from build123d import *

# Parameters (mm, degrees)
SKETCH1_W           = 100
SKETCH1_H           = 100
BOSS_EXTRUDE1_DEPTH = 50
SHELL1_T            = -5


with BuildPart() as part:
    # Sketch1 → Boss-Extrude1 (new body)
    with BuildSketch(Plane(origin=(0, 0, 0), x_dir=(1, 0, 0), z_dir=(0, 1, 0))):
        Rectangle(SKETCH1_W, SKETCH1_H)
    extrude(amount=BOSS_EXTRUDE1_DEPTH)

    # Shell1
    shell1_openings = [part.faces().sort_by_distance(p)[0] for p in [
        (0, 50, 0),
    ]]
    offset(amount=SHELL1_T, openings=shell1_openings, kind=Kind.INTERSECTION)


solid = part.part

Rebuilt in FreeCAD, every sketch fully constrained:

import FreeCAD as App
import Part
import Sketcher
from FreeCAD import Vector


def faces_at(feature, points):
    """Names of the faces that lie closest to the given points."""
    faces = feature.Shape.Faces
    near = lambda p: min(range(len(faces)), key=lambda i: faces[i].distToShape(Part.Vertex(*p))[0])
    return sorted({f"Face{near(p) + 1}" for p in points})


def add_polygon(sketch, points):
    """Adds a closed chain of lines whose ends are joined by coincident constraints."""
    first, n = sketch.GeometryCount, len(points)
    for a, b in zip(points, points[1:] + points[:1]):
        sketch.addGeometry(Part.LineSegment(App.Vector(*a, 0), App.Vector(*b, 0)), False)
    for i in range(n):
        sketch.addConstraint(Sketcher.Constraint("Coincident", first + i, 2, first + (i + 1) % n, 1))

doc = App.newDocument("Part")
body = doc.addObject("PartDesign::Body", "Body")

# Sketch on XZ plane
sketch1 = body.newObject("Sketcher::SketchObject", "Sketch")
sketch1.AttachmentSupport = (doc.getObject("XZ_Plane"), [""])
sketch1.MapMode = "FlatFace"
add_polygon(sketch1, [(-50, -50), (-50, 50), (50, 50), (50, -50)])  # lines 0-3
sketch1.addConstraint(Sketcher.Constraint("Vertical", 0))
sketch1.addConstraint(Sketcher.Constraint("Horizontal", 1))
sketch1.addConstraint(Sketcher.Constraint("Vertical", 2))
sketch1.addConstraint(Sketcher.Constraint("Horizontal", 3))
sketch1.addConstraint(Sketcher.Constraint("Symmetric", 0, 2, 2, 2, -1, 1))
sketch1.addConstraint(Sketcher.Constraint("Equal", 3, 0))
sketch1.addConstraint(Sketcher.Constraint("DistanceX", 1, 1, 1, 2, 100.0))
pad1 = body.newObject("PartDesign::Pad", "Pad")
pad1.Profile = sketch1
pad1.Length = 50
pad1.Reversed = True
doc.recompute()

thickness = body.newObject("PartDesign::Thickness", "Thickness")
thickness.Base = (pad1, faces_at(pad1, [(0, 50, 0)]))
thickness.Value = 5
thickness.Reversed = True
thickness.Join = "Intersection"

doc.recompute()
